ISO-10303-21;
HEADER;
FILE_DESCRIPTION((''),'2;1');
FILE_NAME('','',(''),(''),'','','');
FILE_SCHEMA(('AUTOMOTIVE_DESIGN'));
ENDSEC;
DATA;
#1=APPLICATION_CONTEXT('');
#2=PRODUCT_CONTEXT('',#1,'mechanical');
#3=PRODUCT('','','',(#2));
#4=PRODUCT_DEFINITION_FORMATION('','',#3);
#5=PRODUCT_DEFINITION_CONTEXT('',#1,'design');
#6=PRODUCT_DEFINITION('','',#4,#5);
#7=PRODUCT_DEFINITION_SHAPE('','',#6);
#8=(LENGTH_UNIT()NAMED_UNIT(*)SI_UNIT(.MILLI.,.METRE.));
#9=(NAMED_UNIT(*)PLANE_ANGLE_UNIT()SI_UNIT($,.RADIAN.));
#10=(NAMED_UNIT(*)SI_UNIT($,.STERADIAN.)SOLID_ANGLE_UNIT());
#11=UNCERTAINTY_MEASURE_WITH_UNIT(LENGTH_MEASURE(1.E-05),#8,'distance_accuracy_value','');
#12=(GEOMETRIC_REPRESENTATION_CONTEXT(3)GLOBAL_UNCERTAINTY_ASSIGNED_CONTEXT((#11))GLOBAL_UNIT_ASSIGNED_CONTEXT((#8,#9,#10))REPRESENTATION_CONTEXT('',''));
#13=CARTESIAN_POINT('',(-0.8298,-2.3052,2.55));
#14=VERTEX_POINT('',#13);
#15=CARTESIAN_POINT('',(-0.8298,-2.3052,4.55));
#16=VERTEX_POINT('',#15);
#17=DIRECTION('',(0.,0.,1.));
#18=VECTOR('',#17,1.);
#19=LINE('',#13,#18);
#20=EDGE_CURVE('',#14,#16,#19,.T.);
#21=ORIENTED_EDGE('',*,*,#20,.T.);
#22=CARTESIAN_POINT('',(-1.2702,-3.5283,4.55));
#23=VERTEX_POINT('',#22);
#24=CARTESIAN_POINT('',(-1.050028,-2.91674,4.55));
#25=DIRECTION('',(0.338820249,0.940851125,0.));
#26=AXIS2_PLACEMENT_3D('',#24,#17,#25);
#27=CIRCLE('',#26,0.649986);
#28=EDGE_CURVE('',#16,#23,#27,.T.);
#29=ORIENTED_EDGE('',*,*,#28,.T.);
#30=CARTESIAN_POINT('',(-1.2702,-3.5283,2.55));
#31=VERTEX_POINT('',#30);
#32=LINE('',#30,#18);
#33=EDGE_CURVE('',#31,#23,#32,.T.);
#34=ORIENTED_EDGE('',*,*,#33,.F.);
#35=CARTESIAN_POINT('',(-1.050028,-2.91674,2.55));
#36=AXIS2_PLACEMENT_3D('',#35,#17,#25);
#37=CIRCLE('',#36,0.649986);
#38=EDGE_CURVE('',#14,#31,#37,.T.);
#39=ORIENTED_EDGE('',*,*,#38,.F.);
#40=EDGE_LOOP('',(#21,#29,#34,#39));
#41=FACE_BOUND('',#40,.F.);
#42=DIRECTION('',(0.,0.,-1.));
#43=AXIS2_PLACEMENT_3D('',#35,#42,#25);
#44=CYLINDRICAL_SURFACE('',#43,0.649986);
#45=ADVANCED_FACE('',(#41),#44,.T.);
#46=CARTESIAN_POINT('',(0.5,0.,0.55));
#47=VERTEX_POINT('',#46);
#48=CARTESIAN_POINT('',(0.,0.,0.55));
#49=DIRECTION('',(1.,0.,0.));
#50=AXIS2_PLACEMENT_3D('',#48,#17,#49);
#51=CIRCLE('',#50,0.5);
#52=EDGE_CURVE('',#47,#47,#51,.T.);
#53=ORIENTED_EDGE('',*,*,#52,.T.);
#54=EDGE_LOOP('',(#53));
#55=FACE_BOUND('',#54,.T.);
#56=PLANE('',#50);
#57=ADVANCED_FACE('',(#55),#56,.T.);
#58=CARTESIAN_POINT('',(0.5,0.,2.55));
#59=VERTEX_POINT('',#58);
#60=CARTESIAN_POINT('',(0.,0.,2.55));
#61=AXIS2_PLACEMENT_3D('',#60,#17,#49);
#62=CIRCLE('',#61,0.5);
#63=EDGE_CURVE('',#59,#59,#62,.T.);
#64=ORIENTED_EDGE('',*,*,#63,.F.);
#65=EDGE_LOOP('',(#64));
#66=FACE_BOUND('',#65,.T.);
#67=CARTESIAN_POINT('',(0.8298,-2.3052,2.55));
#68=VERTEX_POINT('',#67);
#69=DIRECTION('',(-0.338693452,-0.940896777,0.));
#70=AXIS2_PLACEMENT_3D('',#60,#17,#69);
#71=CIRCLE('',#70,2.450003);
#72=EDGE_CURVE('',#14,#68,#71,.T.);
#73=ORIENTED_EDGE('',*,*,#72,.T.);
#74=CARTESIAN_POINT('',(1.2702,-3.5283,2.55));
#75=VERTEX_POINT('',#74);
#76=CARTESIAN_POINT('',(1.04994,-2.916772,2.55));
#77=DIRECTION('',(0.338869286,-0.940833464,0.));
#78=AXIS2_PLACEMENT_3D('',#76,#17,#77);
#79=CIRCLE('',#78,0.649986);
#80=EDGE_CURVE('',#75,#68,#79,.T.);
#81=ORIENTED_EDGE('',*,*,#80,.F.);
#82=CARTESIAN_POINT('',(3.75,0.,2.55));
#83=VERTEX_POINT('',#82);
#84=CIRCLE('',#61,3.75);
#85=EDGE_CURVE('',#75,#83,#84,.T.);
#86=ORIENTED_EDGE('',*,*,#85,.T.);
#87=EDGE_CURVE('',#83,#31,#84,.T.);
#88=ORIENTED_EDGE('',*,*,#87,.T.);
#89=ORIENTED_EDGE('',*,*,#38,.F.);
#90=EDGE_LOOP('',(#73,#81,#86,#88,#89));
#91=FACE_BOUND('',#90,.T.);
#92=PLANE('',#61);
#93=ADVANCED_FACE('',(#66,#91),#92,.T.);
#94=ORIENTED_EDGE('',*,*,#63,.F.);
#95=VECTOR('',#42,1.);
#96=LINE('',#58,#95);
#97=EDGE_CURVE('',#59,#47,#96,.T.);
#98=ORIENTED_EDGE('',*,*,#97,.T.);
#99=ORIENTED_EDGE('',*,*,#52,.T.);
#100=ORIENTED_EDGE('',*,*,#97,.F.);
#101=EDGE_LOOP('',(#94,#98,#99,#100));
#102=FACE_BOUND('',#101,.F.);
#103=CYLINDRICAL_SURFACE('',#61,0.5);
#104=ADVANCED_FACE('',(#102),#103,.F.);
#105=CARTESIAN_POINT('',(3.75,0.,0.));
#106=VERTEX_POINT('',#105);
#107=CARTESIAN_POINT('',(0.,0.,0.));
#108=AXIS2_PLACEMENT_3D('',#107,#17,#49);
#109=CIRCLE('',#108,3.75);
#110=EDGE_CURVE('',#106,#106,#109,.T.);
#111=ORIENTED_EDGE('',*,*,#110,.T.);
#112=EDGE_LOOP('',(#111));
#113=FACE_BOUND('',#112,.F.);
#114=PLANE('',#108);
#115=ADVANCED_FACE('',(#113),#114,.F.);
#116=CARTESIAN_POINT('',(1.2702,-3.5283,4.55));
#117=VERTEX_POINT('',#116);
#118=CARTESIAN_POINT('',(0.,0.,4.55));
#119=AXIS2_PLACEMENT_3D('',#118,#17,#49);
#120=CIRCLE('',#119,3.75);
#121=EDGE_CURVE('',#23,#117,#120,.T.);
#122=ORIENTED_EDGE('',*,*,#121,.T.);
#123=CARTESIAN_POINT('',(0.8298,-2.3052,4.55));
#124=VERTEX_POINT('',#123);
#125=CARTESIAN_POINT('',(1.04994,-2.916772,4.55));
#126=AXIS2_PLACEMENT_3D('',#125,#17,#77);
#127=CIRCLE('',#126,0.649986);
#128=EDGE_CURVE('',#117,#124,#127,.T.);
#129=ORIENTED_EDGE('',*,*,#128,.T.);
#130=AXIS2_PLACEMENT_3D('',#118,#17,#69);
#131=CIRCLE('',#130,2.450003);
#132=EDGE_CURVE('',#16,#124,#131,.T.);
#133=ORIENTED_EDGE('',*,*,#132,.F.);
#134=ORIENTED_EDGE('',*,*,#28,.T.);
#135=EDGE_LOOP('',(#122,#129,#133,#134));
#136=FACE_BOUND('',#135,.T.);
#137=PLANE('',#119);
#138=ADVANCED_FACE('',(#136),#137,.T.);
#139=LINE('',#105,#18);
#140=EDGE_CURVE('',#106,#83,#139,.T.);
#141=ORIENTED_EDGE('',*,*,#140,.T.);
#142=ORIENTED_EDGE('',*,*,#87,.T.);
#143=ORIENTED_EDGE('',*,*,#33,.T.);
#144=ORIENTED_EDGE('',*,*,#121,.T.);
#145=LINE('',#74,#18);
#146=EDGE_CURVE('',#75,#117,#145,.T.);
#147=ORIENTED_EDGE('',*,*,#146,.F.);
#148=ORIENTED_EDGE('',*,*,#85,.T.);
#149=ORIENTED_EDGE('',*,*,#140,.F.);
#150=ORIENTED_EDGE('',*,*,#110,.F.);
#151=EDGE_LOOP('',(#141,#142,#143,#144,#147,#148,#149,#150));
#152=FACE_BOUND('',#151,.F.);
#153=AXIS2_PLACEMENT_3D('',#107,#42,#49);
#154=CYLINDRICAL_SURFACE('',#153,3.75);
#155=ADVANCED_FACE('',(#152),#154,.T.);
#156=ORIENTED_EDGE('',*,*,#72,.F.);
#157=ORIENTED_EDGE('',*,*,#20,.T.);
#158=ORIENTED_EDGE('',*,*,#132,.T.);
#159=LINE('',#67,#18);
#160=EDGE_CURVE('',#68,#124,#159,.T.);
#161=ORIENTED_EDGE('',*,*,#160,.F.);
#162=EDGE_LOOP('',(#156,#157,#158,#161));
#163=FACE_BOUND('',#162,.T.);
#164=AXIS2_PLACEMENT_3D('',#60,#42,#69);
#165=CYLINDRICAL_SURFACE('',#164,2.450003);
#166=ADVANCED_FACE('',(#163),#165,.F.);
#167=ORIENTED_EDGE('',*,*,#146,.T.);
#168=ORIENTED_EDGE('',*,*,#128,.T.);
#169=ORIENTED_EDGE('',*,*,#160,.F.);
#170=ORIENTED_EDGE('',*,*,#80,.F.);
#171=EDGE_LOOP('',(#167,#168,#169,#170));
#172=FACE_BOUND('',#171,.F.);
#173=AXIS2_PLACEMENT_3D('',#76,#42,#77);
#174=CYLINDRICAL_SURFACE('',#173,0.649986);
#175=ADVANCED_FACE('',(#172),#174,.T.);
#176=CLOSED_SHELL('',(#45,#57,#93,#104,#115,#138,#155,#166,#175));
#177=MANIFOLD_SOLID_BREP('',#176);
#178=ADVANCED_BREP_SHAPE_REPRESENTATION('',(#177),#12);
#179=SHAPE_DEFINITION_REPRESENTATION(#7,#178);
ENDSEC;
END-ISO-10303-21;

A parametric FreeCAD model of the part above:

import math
import FreeCAD as App
import Part
import Sketcher
from FreeCAD import Vector

doc = App.newDocument("Part")
params = doc.addObject("Spreadsheet::Sheet", "Params")
for row, (alias, value) in enumerate([
    ("sketch1_diameter", "7.5 mm"),
    ("pad1_length", "2.55 mm"),
    ("sketch2_radius", "0.65 mm"),
    ("sketch2_radius2", "2.45 mm"),
    ("pad2_length", "2 mm"),
    ("sketch3_diameter", "1 mm"),
    ("pocket1_length", "2 mm"),
], start=1):
    params.set(f"A{row}", alias)
    params.set(f"B{row}", "=" + value)
    params.setAlias(f"B{row}", alias)

body = doc.addObject("PartDesign::Body", "Body")

# Sketch on XY plane
sketch1 = body.newObject("Sketcher::SketchObject", "Sketch")
sketch1.AttachmentSupport = (doc.getObject("XY_Plane"), [""])
sketch1.MapMode = "FlatFace"
sketch1.addGeometry(Part.Circle(Vector(0, 0, 0), Vector(0, 0, 1), 3.75), False)
sketch1.addConstraint([
    Sketcher.Constraint("Coincident", 0, 3, -1, 1),
    Sketcher.Constraint("Diameter", 0, 7.5),
])
sketch1.setExpression("Constraints[1]", "Params.sketch1_diameter")
pad1 = body.newObject("PartDesign::Pad", "Pad")
pad1.Profile = sketch1
pad1.setExpression("Length", "Params.pad1_length")

# Sketch on XY plane
sketch2 = body.newObject("Sketcher::SketchObject", "Sketch001")
sketch2.AttachmentSupport = (doc.getObject("XY_Plane"), [""])
sketch2.MapMode = "FlatFace"
sketch2.AttachmentOffset = App.Placement(Vector(0, 0, 2.55), App.Rotation())
sketch2.addGeometry([
    Part.ArcOfCircle(Part.Circle(Vector(0, 0, 0), Vector(0, 0, 1), 2.450003), math.radians(-109.797292), math.radians(-70.202708)),
    Part.ArcOfCircle(Part.Circle(Vector(-1.05, -2.9168, 0), Vector(0, 0, 1), 0.650033), math.radians(70.199133), math.radians(250.196147)),
    Part.ArcOfCircle(Part.Circle(Vector(0, 0, 0), Vector(0, 0, 1), 3.75), math.radians(-109.799049), math.radians(-70.200951)),
    Part.ArcOfCircle(Part.Circle(Vector(1.05, -2.9168, 0), Vector(0, 0, 1), 0.649939), math.radians(-70.196147), math.radians(109.800867)),
], False)
sketch2.addConstraint([
    Sketcher.Constraint("Tangent", 0, 1, 1, 1),
    Sketcher.Constraint("Tangent", 1, 2, 2, 1),
    Sketcher.Constraint("Tangent", 2, 2, 3, 1),
    Sketcher.Constraint("Tangent", 3, 2, 0, 2),
    Sketcher.Constraint("Coincident", 0, 3, -1, 1),
    Sketcher.Constraint("Coincident", 2, 3, -1, 1),
    Sketcher.Constraint("Horizontal", 1, 3, 3, 3),
    Sketcher.Constraint("Radius", 1, 0.65),
    Sketcher.Constraint("Radius", 0, 2.45),
    Sketcher.Constraint("DistanceX", 1, 3, 3, 3, 2.1),
])
sketch2.setExpression("Constraints[7]", "Params.sketch2_radius")
sketch2.setExpression("Constraints[8]", "Params.sketch2_radius2")
pad2 = body.newObject("PartDesign::Pad", "Pad001")
pad2.Profile = sketch2
pad2.setExpression("Length", "Params.pad2_length")

# Sketch on XY plane
sketch3 = body.newObject("Sketcher::SketchObject", "Sketch002")
sketch3.AttachmentSupport = (doc.getObject("XY_Plane"), [""])
sketch3.MapMode = "FlatFace"
sketch3.AttachmentOffset = App.Placement(Vector(0, 0, 2.55), App.Rotation())
sketch3.addGeometry(Part.Circle(Vector(0, 0, 0), Vector(0, 0, 1), 0.5), False)
sketch3.addConstraint([
    Sketcher.Constraint("Coincident", 0, 3, -1, 1),
    Sketcher.Constraint("Diameter", 0, 1.0),
])
sketch3.setExpression("Constraints[1]", "Params.sketch3_diameter")
pocket1 = body.newObject("PartDesign::Pocket", "Pocket")
pocket1.Profile = sketch3
pocket1.setExpression("Length", "Params.pocket1_length")

doc.recompute()
